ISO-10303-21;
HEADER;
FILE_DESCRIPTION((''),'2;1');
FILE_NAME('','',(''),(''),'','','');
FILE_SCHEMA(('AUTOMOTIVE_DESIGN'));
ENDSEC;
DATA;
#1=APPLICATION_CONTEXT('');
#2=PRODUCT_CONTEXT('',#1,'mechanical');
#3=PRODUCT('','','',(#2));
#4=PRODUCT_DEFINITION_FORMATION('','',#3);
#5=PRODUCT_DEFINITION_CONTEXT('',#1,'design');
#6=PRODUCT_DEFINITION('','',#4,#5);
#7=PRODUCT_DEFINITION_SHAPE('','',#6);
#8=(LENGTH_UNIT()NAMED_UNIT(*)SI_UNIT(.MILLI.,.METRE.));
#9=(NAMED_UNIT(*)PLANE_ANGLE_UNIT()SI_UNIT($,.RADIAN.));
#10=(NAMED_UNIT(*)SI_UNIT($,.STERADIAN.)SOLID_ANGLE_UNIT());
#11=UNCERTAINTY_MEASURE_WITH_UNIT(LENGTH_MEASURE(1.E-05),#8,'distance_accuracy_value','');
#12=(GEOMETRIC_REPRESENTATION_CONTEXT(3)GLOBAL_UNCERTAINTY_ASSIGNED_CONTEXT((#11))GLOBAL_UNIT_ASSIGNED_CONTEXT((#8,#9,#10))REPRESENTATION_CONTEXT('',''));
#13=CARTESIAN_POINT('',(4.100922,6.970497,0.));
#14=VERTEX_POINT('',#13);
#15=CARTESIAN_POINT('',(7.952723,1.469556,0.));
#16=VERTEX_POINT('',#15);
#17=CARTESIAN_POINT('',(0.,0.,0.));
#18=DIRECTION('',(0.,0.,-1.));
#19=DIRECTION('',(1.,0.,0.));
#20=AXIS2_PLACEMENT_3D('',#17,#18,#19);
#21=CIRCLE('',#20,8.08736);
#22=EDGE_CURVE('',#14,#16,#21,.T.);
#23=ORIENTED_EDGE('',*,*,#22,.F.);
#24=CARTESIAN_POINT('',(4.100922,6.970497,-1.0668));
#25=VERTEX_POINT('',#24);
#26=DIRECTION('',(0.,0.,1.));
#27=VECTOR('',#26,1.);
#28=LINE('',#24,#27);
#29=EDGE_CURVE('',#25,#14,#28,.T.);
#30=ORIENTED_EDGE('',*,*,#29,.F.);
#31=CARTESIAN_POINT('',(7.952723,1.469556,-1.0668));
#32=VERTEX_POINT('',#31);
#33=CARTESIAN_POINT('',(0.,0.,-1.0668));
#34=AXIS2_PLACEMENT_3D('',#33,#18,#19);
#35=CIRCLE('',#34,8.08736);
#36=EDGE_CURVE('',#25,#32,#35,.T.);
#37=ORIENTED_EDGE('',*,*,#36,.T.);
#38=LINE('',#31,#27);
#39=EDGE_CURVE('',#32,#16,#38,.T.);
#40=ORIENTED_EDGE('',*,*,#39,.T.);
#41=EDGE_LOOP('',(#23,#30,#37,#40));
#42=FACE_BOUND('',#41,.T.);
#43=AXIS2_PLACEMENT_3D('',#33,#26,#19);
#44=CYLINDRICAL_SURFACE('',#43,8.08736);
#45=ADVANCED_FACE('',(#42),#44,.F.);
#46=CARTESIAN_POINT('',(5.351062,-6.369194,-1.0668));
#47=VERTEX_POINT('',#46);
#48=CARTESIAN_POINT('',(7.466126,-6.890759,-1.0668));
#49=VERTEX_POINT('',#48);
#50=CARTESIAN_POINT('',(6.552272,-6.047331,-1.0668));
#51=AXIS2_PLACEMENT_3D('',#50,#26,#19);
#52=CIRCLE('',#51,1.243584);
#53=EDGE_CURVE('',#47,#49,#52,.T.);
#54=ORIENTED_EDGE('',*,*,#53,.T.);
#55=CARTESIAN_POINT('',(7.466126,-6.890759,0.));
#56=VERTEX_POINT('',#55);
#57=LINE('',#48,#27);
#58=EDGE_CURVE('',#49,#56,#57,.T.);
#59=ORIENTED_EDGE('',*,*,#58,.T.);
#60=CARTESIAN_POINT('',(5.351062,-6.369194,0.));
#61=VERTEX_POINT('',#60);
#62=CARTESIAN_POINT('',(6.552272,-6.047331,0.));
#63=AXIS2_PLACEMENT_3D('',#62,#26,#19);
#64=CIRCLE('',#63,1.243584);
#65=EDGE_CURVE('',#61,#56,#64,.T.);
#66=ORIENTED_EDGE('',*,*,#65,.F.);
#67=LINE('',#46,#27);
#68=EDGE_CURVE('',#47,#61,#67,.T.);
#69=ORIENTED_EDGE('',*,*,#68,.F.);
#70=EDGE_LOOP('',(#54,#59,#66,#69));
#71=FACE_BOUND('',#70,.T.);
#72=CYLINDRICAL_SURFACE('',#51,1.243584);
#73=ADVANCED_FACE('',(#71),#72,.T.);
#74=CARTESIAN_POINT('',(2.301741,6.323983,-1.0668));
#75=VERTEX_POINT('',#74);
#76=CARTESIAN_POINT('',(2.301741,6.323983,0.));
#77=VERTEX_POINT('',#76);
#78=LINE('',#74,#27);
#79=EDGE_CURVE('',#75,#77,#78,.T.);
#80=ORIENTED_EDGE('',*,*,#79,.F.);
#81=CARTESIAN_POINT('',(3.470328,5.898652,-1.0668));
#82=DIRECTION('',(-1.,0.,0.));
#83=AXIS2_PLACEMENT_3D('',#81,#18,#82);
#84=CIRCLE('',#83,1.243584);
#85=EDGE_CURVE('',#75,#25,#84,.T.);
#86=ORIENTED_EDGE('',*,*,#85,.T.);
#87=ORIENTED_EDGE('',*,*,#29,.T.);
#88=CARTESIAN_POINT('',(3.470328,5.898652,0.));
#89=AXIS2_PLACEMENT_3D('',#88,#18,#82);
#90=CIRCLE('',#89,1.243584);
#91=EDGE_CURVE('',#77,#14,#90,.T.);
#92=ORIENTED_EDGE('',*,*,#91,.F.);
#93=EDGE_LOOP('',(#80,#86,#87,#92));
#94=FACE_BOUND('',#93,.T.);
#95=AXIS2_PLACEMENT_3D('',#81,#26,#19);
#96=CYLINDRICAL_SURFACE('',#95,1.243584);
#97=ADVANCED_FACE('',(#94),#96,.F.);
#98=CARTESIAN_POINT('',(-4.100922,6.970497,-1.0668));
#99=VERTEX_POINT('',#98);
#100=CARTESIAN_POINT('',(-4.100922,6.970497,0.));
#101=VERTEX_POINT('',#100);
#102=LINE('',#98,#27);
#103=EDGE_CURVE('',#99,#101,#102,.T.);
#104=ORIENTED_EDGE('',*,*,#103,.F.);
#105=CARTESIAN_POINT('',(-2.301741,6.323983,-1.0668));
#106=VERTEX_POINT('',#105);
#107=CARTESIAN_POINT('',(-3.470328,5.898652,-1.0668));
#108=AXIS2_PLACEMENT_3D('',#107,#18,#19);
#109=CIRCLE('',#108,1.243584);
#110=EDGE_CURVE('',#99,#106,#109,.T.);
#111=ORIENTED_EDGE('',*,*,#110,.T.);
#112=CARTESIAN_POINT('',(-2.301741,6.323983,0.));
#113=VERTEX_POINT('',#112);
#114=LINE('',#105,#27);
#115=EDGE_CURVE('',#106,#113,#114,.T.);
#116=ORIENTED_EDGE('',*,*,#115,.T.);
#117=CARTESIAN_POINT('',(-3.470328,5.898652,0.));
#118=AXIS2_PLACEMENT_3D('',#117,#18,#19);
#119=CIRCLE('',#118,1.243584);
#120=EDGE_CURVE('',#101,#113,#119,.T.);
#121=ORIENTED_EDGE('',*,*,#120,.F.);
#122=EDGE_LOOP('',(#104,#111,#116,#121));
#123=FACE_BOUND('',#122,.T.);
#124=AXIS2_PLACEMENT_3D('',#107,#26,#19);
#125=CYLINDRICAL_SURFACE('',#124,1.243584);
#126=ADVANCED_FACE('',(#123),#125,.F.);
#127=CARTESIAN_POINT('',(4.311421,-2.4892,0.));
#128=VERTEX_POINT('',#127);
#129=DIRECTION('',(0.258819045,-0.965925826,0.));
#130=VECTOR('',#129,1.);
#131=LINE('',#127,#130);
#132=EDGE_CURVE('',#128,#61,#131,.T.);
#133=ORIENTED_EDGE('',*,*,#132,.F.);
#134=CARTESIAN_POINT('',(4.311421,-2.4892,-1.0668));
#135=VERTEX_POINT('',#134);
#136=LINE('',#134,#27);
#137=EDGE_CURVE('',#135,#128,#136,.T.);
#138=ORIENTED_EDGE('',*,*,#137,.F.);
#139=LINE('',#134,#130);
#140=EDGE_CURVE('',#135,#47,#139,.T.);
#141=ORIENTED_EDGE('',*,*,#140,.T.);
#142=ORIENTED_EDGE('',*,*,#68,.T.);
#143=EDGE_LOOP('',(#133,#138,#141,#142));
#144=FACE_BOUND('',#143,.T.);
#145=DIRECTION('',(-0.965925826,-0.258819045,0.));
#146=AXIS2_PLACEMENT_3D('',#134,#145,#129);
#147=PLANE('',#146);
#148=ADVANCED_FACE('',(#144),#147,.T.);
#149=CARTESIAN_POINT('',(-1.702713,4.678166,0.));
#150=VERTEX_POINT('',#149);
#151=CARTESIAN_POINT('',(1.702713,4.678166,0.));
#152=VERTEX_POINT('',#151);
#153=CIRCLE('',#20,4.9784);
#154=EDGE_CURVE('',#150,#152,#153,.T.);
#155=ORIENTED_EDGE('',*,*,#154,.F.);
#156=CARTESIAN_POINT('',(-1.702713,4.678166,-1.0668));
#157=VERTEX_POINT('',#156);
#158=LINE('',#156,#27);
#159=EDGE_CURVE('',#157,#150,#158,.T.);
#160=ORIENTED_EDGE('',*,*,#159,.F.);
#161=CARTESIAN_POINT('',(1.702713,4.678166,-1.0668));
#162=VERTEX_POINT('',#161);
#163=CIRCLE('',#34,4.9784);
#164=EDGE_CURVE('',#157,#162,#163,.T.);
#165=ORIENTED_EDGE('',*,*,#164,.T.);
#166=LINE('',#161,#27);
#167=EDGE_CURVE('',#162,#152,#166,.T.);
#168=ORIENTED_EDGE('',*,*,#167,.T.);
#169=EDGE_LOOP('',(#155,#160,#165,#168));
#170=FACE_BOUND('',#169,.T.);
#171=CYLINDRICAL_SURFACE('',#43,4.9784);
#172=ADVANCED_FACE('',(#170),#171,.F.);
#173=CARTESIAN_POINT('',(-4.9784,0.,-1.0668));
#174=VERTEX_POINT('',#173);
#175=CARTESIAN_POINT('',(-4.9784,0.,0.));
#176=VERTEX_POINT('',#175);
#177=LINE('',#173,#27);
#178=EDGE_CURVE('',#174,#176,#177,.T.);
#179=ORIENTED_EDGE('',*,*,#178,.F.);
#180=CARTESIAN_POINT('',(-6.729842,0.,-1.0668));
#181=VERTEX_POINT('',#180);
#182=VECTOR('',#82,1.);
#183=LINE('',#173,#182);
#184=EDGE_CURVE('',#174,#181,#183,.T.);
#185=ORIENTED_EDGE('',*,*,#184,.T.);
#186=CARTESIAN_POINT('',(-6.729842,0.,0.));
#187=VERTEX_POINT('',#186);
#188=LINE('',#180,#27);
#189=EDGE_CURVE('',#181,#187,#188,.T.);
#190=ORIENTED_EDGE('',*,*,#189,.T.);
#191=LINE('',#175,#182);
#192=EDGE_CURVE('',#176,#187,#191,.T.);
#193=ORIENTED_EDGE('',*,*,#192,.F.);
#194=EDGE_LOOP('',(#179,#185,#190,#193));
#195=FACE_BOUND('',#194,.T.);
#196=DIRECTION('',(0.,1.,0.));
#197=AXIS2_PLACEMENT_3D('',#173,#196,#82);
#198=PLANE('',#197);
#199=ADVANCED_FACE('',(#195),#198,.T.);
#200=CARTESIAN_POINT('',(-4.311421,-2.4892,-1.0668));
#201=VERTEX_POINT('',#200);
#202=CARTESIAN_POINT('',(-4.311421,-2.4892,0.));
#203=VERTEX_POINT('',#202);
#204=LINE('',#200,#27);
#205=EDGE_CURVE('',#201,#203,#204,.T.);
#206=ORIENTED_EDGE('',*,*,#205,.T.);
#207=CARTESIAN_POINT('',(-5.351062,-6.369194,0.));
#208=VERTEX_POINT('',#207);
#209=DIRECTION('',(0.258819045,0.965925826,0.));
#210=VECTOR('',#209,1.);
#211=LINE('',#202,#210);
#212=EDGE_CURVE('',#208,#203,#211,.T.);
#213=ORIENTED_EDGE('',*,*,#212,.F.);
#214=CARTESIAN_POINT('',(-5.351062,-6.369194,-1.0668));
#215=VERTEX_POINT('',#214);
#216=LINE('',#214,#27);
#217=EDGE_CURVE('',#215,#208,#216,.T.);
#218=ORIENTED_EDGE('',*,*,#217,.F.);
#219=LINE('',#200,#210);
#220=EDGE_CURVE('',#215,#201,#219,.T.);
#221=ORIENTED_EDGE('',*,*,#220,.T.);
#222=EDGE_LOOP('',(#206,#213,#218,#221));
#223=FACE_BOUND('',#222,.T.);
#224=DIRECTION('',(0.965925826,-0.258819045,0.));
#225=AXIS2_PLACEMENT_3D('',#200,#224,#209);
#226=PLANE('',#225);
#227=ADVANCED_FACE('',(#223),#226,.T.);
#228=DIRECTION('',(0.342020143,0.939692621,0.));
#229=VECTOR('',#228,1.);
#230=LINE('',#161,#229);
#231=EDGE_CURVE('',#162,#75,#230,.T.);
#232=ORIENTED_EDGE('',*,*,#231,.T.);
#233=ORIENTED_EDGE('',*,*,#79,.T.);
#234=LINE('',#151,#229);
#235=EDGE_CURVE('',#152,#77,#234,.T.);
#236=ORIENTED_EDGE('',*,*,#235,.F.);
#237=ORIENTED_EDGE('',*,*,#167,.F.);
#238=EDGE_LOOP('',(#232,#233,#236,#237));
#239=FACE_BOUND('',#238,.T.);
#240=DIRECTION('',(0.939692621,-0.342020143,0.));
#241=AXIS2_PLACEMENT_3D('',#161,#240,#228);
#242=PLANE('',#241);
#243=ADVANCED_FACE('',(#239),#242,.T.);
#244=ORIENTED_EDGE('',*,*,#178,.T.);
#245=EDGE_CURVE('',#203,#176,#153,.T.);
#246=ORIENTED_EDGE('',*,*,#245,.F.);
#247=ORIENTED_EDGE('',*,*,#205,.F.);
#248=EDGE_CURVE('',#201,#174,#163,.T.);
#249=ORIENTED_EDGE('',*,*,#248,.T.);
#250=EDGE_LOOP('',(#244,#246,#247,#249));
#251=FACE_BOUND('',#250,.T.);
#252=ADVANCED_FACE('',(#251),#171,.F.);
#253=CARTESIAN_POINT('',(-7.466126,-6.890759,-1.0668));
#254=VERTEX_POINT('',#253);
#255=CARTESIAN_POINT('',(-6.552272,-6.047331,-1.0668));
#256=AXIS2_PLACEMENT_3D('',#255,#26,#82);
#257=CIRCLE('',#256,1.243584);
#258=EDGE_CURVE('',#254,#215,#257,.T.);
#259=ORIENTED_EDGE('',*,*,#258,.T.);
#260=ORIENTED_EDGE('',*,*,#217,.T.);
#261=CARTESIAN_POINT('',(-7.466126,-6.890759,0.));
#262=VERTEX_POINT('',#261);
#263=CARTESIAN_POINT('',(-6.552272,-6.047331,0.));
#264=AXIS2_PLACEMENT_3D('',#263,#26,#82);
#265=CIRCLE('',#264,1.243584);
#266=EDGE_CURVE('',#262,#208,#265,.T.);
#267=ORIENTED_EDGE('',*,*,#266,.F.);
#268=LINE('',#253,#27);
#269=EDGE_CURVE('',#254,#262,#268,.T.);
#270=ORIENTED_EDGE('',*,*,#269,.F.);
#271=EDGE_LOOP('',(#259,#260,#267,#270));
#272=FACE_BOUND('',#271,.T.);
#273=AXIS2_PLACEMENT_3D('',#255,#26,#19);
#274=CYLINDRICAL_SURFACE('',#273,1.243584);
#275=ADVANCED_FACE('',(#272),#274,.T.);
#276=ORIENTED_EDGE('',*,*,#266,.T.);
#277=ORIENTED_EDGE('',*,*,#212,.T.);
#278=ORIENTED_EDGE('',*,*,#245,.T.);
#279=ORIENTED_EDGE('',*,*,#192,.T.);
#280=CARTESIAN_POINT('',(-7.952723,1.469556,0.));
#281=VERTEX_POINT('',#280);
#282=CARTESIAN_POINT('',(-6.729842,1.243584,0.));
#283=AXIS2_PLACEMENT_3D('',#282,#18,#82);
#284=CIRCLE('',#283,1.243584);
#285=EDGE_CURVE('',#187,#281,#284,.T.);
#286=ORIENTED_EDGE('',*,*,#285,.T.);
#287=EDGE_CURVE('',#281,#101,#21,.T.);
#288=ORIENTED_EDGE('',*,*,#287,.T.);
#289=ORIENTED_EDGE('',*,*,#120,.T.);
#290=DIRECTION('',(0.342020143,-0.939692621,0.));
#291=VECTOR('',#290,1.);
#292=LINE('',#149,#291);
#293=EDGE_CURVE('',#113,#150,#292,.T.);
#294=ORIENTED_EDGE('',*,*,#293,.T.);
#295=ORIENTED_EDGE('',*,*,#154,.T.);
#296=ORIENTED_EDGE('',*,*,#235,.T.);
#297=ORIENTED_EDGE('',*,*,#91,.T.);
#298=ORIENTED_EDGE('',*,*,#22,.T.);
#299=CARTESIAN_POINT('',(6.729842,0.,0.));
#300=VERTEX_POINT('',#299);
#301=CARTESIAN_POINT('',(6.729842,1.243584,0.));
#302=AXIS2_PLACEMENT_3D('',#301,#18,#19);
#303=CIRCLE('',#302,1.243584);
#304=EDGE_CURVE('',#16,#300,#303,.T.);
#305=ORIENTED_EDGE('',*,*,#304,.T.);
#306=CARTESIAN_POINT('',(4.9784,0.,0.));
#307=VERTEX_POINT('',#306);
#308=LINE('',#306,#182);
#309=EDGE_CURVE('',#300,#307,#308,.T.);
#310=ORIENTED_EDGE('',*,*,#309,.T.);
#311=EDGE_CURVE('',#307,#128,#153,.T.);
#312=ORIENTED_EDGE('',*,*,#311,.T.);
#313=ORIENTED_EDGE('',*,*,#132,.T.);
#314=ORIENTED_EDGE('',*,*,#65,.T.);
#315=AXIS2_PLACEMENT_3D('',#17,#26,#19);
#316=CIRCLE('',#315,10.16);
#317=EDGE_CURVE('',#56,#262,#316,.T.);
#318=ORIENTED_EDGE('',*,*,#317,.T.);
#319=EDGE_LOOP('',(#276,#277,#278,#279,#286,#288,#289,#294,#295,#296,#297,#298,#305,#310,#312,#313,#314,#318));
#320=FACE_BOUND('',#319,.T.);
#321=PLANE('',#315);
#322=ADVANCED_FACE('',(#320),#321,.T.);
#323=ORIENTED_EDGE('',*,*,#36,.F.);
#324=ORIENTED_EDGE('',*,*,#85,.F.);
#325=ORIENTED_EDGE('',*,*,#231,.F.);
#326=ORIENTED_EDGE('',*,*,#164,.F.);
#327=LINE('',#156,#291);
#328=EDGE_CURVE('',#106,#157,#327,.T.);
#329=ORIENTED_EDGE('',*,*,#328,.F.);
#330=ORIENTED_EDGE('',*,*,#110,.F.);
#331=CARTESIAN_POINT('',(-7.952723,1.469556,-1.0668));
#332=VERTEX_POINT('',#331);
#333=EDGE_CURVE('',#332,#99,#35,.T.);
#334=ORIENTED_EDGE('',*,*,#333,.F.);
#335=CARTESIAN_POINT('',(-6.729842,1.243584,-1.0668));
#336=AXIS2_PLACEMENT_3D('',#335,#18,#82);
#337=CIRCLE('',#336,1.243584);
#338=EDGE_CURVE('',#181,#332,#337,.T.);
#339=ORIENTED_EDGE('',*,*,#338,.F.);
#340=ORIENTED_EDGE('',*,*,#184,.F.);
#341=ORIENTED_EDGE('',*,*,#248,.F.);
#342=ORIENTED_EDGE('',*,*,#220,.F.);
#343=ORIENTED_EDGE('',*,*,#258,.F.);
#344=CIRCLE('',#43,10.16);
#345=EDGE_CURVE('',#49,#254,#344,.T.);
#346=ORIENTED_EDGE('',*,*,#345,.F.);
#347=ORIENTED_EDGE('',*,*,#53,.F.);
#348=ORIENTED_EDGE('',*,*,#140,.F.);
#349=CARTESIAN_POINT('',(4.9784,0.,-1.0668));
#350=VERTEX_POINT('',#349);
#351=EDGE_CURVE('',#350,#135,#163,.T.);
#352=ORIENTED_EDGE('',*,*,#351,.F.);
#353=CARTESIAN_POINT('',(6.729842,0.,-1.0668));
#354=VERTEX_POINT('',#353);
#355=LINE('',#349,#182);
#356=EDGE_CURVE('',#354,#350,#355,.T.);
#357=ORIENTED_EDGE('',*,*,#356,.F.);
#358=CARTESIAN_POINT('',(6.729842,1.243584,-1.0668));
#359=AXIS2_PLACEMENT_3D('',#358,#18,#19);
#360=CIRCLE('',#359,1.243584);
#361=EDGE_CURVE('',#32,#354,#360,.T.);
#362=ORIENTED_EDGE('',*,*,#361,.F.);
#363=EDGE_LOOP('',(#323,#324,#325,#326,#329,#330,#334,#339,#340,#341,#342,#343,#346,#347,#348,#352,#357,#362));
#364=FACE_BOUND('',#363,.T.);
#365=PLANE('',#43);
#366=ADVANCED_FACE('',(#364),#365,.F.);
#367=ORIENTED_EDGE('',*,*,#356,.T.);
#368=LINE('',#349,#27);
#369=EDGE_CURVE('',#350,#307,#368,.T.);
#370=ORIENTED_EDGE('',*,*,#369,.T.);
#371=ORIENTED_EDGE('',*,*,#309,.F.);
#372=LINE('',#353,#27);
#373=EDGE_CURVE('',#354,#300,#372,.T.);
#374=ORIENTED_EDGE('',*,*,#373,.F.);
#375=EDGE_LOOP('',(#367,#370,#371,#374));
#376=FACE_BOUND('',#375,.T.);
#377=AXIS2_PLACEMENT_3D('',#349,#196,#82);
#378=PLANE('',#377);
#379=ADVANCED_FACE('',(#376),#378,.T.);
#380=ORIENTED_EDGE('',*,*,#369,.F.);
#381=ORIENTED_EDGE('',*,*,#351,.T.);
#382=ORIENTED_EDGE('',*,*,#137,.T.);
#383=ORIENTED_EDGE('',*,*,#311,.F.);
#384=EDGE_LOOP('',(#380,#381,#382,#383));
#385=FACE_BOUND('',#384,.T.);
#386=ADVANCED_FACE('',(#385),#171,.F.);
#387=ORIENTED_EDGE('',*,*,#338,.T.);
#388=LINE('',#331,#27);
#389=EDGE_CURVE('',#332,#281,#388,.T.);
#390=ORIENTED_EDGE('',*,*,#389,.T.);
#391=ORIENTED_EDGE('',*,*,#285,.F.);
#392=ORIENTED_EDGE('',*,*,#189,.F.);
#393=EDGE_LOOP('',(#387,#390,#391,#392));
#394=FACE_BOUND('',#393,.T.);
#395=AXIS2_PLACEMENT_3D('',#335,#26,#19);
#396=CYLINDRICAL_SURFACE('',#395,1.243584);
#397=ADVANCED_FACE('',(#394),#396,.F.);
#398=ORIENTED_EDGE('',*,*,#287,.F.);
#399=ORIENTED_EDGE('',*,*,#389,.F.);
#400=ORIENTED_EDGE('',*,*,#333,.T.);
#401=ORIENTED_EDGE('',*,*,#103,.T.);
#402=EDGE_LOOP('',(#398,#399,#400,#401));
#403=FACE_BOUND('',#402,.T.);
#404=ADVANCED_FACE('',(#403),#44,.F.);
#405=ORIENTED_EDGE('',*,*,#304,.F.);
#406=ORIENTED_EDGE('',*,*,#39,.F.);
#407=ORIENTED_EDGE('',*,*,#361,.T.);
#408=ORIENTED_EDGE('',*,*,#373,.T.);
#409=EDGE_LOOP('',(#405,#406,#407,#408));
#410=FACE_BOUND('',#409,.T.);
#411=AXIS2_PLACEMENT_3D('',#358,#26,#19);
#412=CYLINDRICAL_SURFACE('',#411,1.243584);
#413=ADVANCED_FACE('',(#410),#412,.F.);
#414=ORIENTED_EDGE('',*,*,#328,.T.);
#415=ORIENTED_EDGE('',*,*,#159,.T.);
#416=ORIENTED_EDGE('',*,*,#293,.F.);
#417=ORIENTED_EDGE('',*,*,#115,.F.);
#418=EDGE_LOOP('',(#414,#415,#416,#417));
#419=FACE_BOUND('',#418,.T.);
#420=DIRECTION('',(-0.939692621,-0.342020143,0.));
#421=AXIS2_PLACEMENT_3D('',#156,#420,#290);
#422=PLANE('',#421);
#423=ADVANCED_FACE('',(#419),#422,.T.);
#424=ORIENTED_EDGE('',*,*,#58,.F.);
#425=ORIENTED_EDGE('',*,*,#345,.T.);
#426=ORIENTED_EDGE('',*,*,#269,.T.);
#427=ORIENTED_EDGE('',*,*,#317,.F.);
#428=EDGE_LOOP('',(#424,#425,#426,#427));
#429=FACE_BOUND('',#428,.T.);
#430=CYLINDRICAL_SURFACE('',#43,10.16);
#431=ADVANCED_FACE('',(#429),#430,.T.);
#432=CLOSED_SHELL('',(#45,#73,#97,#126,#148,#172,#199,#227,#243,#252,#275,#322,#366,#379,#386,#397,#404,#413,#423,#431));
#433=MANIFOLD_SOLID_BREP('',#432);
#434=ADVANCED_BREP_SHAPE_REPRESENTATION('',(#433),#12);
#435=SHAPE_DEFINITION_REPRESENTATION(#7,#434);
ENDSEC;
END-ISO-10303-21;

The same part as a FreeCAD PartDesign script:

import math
import FreeCAD as App
import Part
import Sketcher
Q = App.Units.Quantity

doc = App.newDocument("Part")
body = doc.addObject("PartDesign::Body", "Body")

sketch1 = body.newObject("Sketcher::SketchObject", "Sketch")
sketch1.AttachmentSupport = (doc.getObject("XY_Plane"), [""])
sketch1.MapMode = "FlatFace"
sketch1.addGeometry([
    Part.LineSegment(App.Vector(4.311421, -2.4892, 0), App.Vector(5.351062, -6.369194, 0)),
    Part.ArcOfCircle(Part.Circle(App.Vector(6.552272, -6.047331, 0), App.Vector(0, 0, 1), 1.243584), math.radians(-165), math.radians(-42.705044)),
    Part.ArcOfCircle(Part.Circle(App.Vector(0, 0, 0), App.Vector(0, 0, 1), 10.16), math.radians(-42.705043), math.radians(222.705043)),
    Part.ArcOfCircle(Part.Circle(App.Vector(-6.552272, -6.047331, 0), App.Vector(0, 0, 1), 1.243584), math.radians(-137.294956), math.radians(-15)),
    Part.LineSegment(App.Vector(-5.351062, -6.369194, 0), App.Vector(-4.311421, -2.4892, 0)),
    Part.ArcOfCircle(Part.Circle(App.Vector(0, 0, 0), App.Vector(0, 0, 1), 4.9784), math.radians(180), math.radians(210)),
    Part.LineSegment(App.Vector(-4.9784, 0, 0), App.Vector(-6.729842, 0, 0)),
    Part.ArcOfCircle(Part.Circle(App.Vector(-6.729842, 1.243584, 0), App.Vector(0, 0, 1), 1.243584), math.radians(169.530609), math.radians(270)),
    Part.ArcOfCircle(Part.Circle(App.Vector(0, 0, 0), App.Vector(0, 0, 1), 8.08736), math.radians(120.469391), math.radians(169.530609)),
    Part.ArcOfCircle(Part.Circle(App.Vector(-3.470328, 5.898652, 0), App.Vector(0, 0, 1), 1.243584), math.radians(20), math.radians(120.469391)),
    Part.LineSegment(App.Vector(-2.301741, 6.323983, 0), App.Vector(-1.702713, 4.678166, 0)),
    Part.ArcOfCircle(Part.Circle(App.Vector(0, 0, 0), App.Vector(0, 0, 1), 4.9784), math.radians(70), math.radians(110)),
    Part.LineSegment(App.Vector(1.702713, 4.678166, 0), App.Vector(2.301741, 6.323983, 0)),
    Part.ArcOfCircle(Part.Circle(App.Vector(3.470328, 5.898652, 0), App.Vector(0, 0, 1), 1.243584), math.radians(59.530609), math.radians(160)),
    Part.ArcOfCircle(Part.Circle(App.Vector(0, 0, 0), App.Vector(0, 0, 1), 8.08736), math.radians(10.469391), math.radians(59.530609)),
    Part.ArcOfCircle(Part.Circle(App.Vector(6.729842, 1.243584, 0), App.Vector(0, 0, 1), 1.243584), math.radians(-90), math.radians(10.469391)),
    Part.LineSegment(App.Vector(6.729842, 0, 0), App.Vector(4.9784, 0, 0)),
    Part.ArcOfCircle(Part.Circle(App.Vector(0, 0, 0), App.Vector(0, 0, 1), 4.9784), math.radians(-30), math.radians(0)),
], False)
sketch1.addConstraint([
    Sketcher.Constraint("Tangent", 0, 2, 1, 1),
    Sketcher.Constraint("Tangent", 1, 2, 2, 1),
    Sketcher.Constraint("Tangent", 2, 2, 3, 1),
    Sketcher.Constraint("Tangent", 3, 2, 4, 1),
    Sketcher.Constraint("Coincident", 4, 2, 5, 2),
    Sketcher.Constraint("Coincident", 5, 1, 6, 1),
    Sketcher.Constraint("Tangent", 6, 2, 7, 2),
    Sketcher.Constraint("Tangent", 7, 1, 8, 2),
    Sketcher.Constraint("Tangent", 8, 1, 9, 2),
    Sketcher.Constraint("Tangent", 9, 1, 10, 1),
    Sketcher.Constraint("Coincident", 10, 2, 11, 2),
    Sketcher.Constraint("Coincident", 11, 1, 12, 1),
    Sketcher.Constraint("Tangent", 12, 2, 13, 2),
    Sketcher.Constraint("Tangent", 13, 1, 14, 2),
    Sketcher.Constraint("Tangent", 14, 1, 15, 2),
    Sketcher.Constraint("Tangent", 15, 1, 16, 1),
    Sketcher.Constraint("Coincident", 16, 2, 17, 2),
    Sketcher.Constraint("Coincident", 17, 1, 0, 1),
    Sketcher.Constraint("Horizontal", 6),
    Sketcher.Constraint("Horizontal", 16),
    Sketcher.Constraint("Coincident", 2, 3, -1, 1),
    Sketcher.Constraint("Coincident", 5, 3, -1, 1),
    Sketcher.Constraint("Coincident", 8, 3, -1, 1),
    Sketcher.Constraint("Coincident", 11, 3, -1, 1),
    Sketcher.Constraint("Coincident", 14, 3, -1, 1),
    Sketcher.Constraint("Coincident", 17, 3, -1, 1),
    Sketcher.Constraint("Equal", 1, 3),
    Sketcher.Constraint("Equal", 3, 7),
    Sketcher.Constraint("Equal", 7, 9),
    Sketcher.Constraint("Equal", 5, 11),
    Sketcher.Constraint("Equal", 9, 13),
    Sketcher.Constraint("Equal", 8, 14),
    Sketcher.Constraint("Equal", 13, 15),
    Sketcher.Constraint("Equal", 11, 17),
    Sketcher.Constraint("Symmetric", 6, 2, 15, 1, -1, 1),
    Sketcher.Constraint("Symmetric", 0, 2, 3, 2, -2),
    Sketcher.Constraint("Symmetric", 9, 1, 12, 2, -2),
    Sketcher.Constraint("Radius", 2, Q("0.4 in")),
    Sketcher.Constraint("Angle", 0, Q("-75 deg")),
    Sketcher.Constraint("Angle", 10, Q("-70 deg")),
    Sketcher.Constraint("Radius", 5, Q("0.196 in")),
    Sketcher.Constraint("Radius", 8, Q("0.3184 in")),
    Sketcher.Constraint("DistanceY", 4, 2, -1, 1, Q("0.098 in")),
    Sketcher.Constraint("Radius", 1, 1.243584),
    Sketcher.Constraint("DistanceX", 7, 1, 8, 1, 3.8518),
])
pad1 = body.newObject("PartDesign::Pad", "Pad")
pad1.Profile = sketch1
pad1.Length = Q("0.042 in")
pad1.Reversed = True

doc.recompute()
